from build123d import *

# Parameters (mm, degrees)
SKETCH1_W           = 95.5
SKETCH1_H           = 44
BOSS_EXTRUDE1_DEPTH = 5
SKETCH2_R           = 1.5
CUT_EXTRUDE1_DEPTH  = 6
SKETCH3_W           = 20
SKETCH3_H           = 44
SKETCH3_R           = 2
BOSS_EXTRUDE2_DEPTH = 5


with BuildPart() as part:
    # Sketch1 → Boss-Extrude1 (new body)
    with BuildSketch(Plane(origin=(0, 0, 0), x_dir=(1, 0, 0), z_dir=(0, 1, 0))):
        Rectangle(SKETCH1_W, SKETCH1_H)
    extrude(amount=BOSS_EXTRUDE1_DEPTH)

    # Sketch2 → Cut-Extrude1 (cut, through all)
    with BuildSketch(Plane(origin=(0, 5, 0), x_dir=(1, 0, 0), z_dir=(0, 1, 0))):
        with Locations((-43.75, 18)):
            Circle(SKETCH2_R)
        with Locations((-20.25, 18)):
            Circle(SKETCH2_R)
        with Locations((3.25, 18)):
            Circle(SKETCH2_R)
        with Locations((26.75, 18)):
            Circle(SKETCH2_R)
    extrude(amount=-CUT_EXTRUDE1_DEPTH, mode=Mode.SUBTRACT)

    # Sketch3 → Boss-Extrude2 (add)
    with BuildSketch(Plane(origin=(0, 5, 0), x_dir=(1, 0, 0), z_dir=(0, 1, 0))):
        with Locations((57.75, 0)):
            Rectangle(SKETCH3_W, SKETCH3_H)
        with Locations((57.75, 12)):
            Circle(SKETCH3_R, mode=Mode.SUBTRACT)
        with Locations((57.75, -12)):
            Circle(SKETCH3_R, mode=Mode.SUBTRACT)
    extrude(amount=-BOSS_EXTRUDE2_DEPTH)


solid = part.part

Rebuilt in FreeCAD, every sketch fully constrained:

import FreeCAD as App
import Part
import Sketcher
from FreeCAD import Vector


def add_polygon(sketch, points):
    """Adds a closed chain of lines whose ends are joined by coincident constraints."""
    first, n = sketch.GeometryCount, len(points)
    for a, b in zip(points, points[1:] + points[:1]):
        sketch.addGeometry(Part.LineSegment(App.Vector(*a, 0), App.Vector(*b, 0)), False)
    for i in range(n):
        sketch.addConstraint(Sketcher.Constraint("Coincident", first + i, 2, first + (i + 1) % n, 1))

doc = App.newDocument("Part")
body = doc.addObject("PartDesign::Body", "Body")

sketch1 = body.newObject("Sketcher::SketchObject", "Sketch")
sketch1.AttachmentSupport = (doc.getObject("XZ_Plane"), [""])
sketch1.MapMode = "FlatFace"
add_polygon(sketch1, [(-48, -22), (-48, 22), (48, 22), (48, -22)])
sketch1.addConstraint([
    Sketcher.Constraint("Vertical", 0),
    Sketcher.Constraint("Horizontal", 1),
    Sketcher.Constraint("Vertical", 2),
    Sketcher.Constraint("Horizontal", 3),
    Sketcher.Constraint("Symmetric", 0, 2, 2, 2, -1, 1),
    Sketcher.Constraint("DistanceY", 0, 1, 0, 2, 44.0),
    Sketcher.Constraint("DistanceX", 1, 1, 1, 2, 95.5),
])
pad1 = body.newObject("PartDesign::Pad", "Pad")
pad1.Profile = sketch1
pad1.Length = 5
pad1.Reversed = True

sketch2 = body.newObject("Sketcher::SketchObject", "Sketch001")
sketch2.AttachmentSupport = (doc.getObject("XZ_Plane"), [""])
sketch2.MapMode = "FlatFace"
sketch2.AttachmentOffset = App.Placement(Vector(0, 0, -5), App.Rotation())
sketch2.addGeometry([
    Part.Circle(Vector(-43.8, -18, 0), Vector(0, 0, 1), 1.5),
    Part.Circle(Vector(-20.2, -18, 0), Vector(0, 0, 1), 1.5),
    Part.Circle(Vector(3.2, -18, 0), Vector(0, 0, 1), 1.5),
    Part.Circle(Vector(26.8, -18, 0), Vector(0, 0, 1), 1.5),
], False)
sketch2.addConstraint([
    Sketcher.Constraint("Equal", 0, 1),
    Sketcher.Constraint("Equal", 1, 2),
    Sketcher.Constraint("Equal", 2, 3),
    Sketcher.Constraint("Horizontal", 0, 3, 1, 3),
    Sketcher.Constraint("Horizontal", 1, 3, 2, 3),
    Sketcher.Constraint("Horizontal", 2, 3, 3, 3),
    Sketcher.Constraint("Diameter", 0, 3.0),
    Sketcher.Constraint("DistanceY", 0, 3, -1, 1, 18.0),
    Sketcher.Constraint("DistanceX", 0, 3, 2, 3, 47.0),
    Sketcher.Constraint("DistanceX", 1, 3, 3, 3, 47.0),
    Sketcher.Constraint("DistanceX", 0, 3, 1, 3, 23.5),
    Sketcher.Constraint("DistanceX", 0, 3, -1, 1, 43.75),
])
pocket1 = body.newObject("PartDesign::Pocket", "Pocket")
pocket1.Profile = sketch2
pocket1.Type = "ThroughAll"
pocket1.Reversed = True

sketch3 = body.newObject("Sketcher::SketchObject", "Sketch002")
sketch3.AttachmentSupport = (doc.getObject("XZ_Plane"), [""])
sketch3.MapMode = "FlatFace"
sketch3.AttachmentOffset = App.Placement(Vector(0, 0, -5), App.Rotation())
add_polygon(sketch3, [(47.8, -22), (47.8, 22), (67.8, 22), (67.8, -22)])
sketch3.addGeometry(Part.Circle(Vector(57.8, 12, 0), Vector(0, 0, 1), 2), False)
sketch3.addGeometry(Part.Circle(Vector(57.8, -12, 0), Vector(0, 0, 1), 2), False)
sketch3.addConstraint([
    Sketcher.Constraint("Vertical", 0),
    Sketcher.Constraint("Horizontal", 1),
    Sketcher.Constraint("Vertical", 2),
    Sketcher.Constraint("Horizontal", 3),
    Sketcher.Constraint("Equal", 4, 5),
    Sketcher.Constraint("Symmetric", 4, 3, 5, 3, -1),
    Sketcher.Constraint("Diameter", 4, 4.0),
    Sketcher.Constraint("DistanceX", 1, 1, 1, 2, 20.0),
    Sketcher.Constraint("DistanceY", 0, 1, 0, 2, 44.0),
    Sketcher.Constraint("DistanceY", -1, 1, 4, 3, 12.0),
    Sketcher.Constraint("DistanceY", -1, 1, 0, 2, 22.0),
    Sketcher.Constraint("DistanceX", 0, 2, 4, 3, 10.0),
    Sketcher.Constraint("DistanceX", -1, 1, 4, 3, 57.75),
])
pad2 = body.newObject("PartDesign::Pad", "Pad001")
pad2.Profile = sketch3
pad2.Length = 5

doc.recompute()
